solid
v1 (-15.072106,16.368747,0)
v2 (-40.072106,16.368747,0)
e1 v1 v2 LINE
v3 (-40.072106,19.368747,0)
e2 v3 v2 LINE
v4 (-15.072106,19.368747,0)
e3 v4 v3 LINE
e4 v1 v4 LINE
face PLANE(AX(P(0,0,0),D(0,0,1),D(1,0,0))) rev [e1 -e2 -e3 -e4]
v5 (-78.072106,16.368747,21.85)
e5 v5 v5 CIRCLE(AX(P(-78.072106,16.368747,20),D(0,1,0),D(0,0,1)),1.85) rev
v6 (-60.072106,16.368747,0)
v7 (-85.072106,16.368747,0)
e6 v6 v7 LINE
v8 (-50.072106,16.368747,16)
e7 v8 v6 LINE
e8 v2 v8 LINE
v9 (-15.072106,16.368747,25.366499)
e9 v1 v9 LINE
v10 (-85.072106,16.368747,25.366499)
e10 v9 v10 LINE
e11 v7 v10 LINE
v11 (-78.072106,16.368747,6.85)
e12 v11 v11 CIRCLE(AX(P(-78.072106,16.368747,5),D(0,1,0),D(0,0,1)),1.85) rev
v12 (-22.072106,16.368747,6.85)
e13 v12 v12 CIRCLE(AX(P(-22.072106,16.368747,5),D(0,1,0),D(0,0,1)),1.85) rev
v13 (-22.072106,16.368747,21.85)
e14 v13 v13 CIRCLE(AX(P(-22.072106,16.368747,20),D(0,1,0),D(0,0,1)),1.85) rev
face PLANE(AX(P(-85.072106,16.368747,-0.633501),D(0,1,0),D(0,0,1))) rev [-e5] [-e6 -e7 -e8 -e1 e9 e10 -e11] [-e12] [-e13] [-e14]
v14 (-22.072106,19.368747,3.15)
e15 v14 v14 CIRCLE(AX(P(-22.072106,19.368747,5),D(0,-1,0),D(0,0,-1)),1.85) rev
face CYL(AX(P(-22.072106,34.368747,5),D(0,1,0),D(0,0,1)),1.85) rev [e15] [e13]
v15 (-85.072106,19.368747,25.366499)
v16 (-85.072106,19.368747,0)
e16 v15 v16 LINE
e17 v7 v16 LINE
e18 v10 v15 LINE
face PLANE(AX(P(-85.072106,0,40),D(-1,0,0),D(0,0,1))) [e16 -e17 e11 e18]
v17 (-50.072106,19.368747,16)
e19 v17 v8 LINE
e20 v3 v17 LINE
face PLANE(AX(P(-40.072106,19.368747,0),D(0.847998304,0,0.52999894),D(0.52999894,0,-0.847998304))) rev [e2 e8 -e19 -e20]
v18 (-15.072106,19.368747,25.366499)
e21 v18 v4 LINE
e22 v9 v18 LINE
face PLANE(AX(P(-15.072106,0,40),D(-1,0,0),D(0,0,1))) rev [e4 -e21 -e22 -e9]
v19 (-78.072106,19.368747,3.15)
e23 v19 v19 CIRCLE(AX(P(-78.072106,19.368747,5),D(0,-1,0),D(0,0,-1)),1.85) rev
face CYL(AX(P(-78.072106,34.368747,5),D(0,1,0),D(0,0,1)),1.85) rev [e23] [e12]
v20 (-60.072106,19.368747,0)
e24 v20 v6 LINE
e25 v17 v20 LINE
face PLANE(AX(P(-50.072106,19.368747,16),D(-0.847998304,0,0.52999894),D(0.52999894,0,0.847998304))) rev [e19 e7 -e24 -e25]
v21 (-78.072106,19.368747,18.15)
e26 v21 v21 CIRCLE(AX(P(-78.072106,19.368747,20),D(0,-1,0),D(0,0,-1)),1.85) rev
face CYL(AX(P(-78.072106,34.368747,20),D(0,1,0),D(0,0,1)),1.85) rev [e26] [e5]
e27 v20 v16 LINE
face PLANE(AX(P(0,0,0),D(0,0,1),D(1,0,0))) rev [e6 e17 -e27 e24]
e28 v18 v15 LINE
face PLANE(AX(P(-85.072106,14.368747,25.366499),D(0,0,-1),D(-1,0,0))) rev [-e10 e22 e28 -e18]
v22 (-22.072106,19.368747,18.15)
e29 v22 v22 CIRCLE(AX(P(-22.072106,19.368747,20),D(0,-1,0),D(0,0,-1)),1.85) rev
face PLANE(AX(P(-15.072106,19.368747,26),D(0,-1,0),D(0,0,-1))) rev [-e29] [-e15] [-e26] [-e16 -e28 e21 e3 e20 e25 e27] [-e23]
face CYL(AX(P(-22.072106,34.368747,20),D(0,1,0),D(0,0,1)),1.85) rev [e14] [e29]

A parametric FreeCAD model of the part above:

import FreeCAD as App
import Part
import Sketcher
from FreeCAD import Vector

doc = App.newDocument("Part")
params = doc.addObject("Spreadsheet::Sheet", "Params")
for row, (alias, value) in enumerate([
    ("sketch1_width", "70 mm"),
    ("sketch1_height", "20 mm"),
    ("sketch1_height2", "6 mm"),
    ("pad1_length", "40 mm"),
    ("sketch2_diameter", "8.4 mm"),
    ("hole_diameter", "8.4 mm"),
    ("sketch3_diameter", "3.7 mm"),
    ("hole2_diameter", "3.7 mm"),
    ("sketch4_diameter", "8.4 mm"),
    ("hole3_diameter", "8.4 mm"),
    ("hole3_csink_diameter", "8.45 mm"),
    ("sketch5_diameter", "10 mm"),
    ("pocket1_length", "12 mm"),
    ("sketch6_width", "70 mm"),
    ("pocket2_length", "20 mm"),
    ("sketch7_width", "70 mm"),
    ("sketch7_height", "15 mm"),
    ("pocket3_length", "26 mm"),
    ("sketch8_width", "70 mm"),
    ("sketch8_height", "2 mm"),
    ("pocket4_length", "26 mm"),
    ("sketch9_width", "20 mm"),
    ("pocket5_length", "3 mm"),
], start=1):
    params.set(f"A{row}", alias)
    params.set(f"B{row}", "=" + value)
    params.setAlias(f"B{row}", alias)

body = doc.addObject("PartDesign::Body", "Body")

sketch1 = doc.addObject("Sketcher::SketchObject", "Sketch")
body.addObject(sketch1)
sketch1.AttachmentSupport = (doc.XY_Plane, [""])
sketch1.MapMode = "FlatFace"
sketch1.addGeometry(Part.LineSegment(Vector(-85.072106, 34.368747, 0), Vector(-85.072106, 14.368747, 0)), False)
sketch1.addGeometry(Part.LineSegment(Vector(-85.072106, 14.368747, 0), Vector(-15.072106, 14.368747, 0)), False)
sketch1.addGeometry(Part.LineSegment(Vector(-15.072106, 14.368747, 0), Vector(-15.072106, 34.368747, 0)), False)
sketch1.addGeometry(Part.LineSegment(Vector(-15.072106, 34.368747, 0), Vector(-34.338773, 34.368747, 0)), False)
sketch1.addGeometry(Part.LineSegment(Vector(-34.338773, 34.368747, 0), Vector(-34.338773, 28.368747, 0)), False)
sketch1.addGeometry(Part.LineSegment(Vector(-34.338773, 28.368747, 0), Vector(-65.805439, 28.368747, 0)), False)
sketch1.addGeometry(Part.LineSegment(Vector(-65.805439, 28.368747, 0), Vector(-65.805439, 34.368747, 0)), False)
sketch1.addGeometry(Part.LineSegment(Vector(-65.805439, 34.368747, 0), Vector(-85.072106, 34.368747, 0)), False)
sketch1.addConstraint(Sketcher.Constraint("Coincident", 0, 2, 1, 1))
sketch1.addConstraint(Sketcher.Constraint("Coincident", 1, 2, 2, 1))
sketch1.addConstraint(Sketcher.Constraint("Coincident", 2, 2, 3, 1))
sketch1.addConstraint(Sketcher.Constraint("Coincident", 3, 2, 4, 1))
sketch1.addConstraint(Sketcher.Constraint("Coincident", 4, 2, 5, 1))
sketch1.addConstraint(Sketcher.Constraint("Coincident", 5, 2, 6, 1))
sketch1.addConstraint(Sketcher.Constraint("Coincident", 6, 2, 7, 1))
sketch1.addConstraint(Sketcher.Constraint("Coincident", 7, 2, 0, 1))
sketch1.addConstraint(Sketcher.Constraint("Vertical", 0))
sketch1.addConstraint(Sketcher.Constraint("Horizontal", 1))
sketch1.addConstraint(Sketcher.Constraint("Vertical", 2))
sketch1.addConstraint(Sketcher.Constraint("Horizontal", 3))
sketch1.addConstraint(Sketcher.Constraint("Vertical", 4))
sketch1.addConstraint(Sketcher.Constraint("Horizontal", 5))
sketch1.addConstraint(Sketcher.Constraint("Vertical", 6))
sketch1.addConstraint(Sketcher.Constraint("Horizontal", 7))
sketch1.addConstraint(Sketcher.Constraint("Horizontal", 3, 2, 6, 2))
sketch1.addConstraint(Sketcher.Constraint("Equal", 3, 7))
sketch1.addConstraint(Sketcher.Constraint("DistanceX", 1, 1, 1, 2, 70.0))
sketch1.addConstraint(Sketcher.Constraint("DistanceY", 0, 2, 0, 1, 20.0))
sketch1.addConstraint(Sketcher.Constraint("DistanceY", 4, 2, 4, 1, 6.0))
sketch1.addConstraint(Sketcher.Constraint("DistanceX", 3, 2, 3, 1, 19.266667))
sketch1.addConstraint(Sketcher.Constraint("DistanceX", 5, 2, -1, 1, 65.805439))
sketch1.addConstraint(Sketcher.Constraint("DistanceY", -1, 1, 0, 2, 14.368747))
sketch1.setExpression("Constraints[18]", "Params.sketch1_width")
sketch1.setExpression("Constraints[19]", "Params.sketch1_height")
sketch1.setExpression("Constraints[20]", "Params.sketch1_height2")
pad1 = doc.addObject("PartDesign::Pad", "Pad")
body.addObject(pad1)
pad1.Profile = sketch1
pad1.setExpression("Length", "Params.pad1_length")

sketch2 = doc.addObject("Sketcher::SketchObject", "Sketch001")
body.addObject(sketch2)
sketch2.AttachmentSupport = (doc.XZ_Plane, [""])
sketch2.MapMode = "FlatFace"
sketch2.AttachmentOffset = App.Placement(Vector(0, 0, -34.368747), App.Rotation())
sketch2.addGeometry(Part.Circle(Vector(-78.072106, 33, 0), Vector(0, 0, 1), 4.2), False)
sketch2.addGeometry(Part.Circle(Vector(-22.072106, 33, 0), Vector(0, 0, 1), 4.2), False)
sketch2.addConstraint(Sketcher.Constraint("Equal", 0, 1))
sketch2.addConstraint(Sketcher.Constraint("Horizontal", 0, 3, 1, 3))
sketch2.addConstraint(Sketcher.Constraint("Diameter", 0, 8.4))
sketch2.addConstraint(Sketcher.Constraint("DistanceY", -1, 1, 0, 3, 33.0))
sketch2.addConstraint(Sketcher.Constraint("DistanceX", 0, 3, 1, 3, 56.0))
sketch2.addConstraint(Sketcher.Constraint("DistanceX", 0, 3, -1, 1, 78.072106))
sketch2.setExpression("Constraints[2]", "Params.sketch2_diameter")
doc.recompute()
hole = doc.addObject("PartDesign::Hole", "Hole")
body.addObject(hole)
hole.Profile = sketch2
hole.ThreadType = "None"
hole.setExpression("Diameter", "Params.hole_diameter")
hole.DepthType = "ThroughAll"
hole.Reversed = True

sketch3 = doc.addObject("Sketcher::SketchObject", "Sketch002")
body.addObject(sketch3)
sketch3.AttachmentSupport = (doc.XZ_Plane, [""])
sketch3.MapMode = "FlatFace"
sketch3.AttachmentOffset = App.Placement(Vector(0, 0, -34.368747), App.Rotation())
sketch3.addGeometry(Part.Circle(Vector(-78.072106, 5, 0), Vector(0, 0, 1), 1.85), False)
sketch3.addGeometry(Part.Circle(Vector(-78.072106, 20, 0), Vector(0, 0, 1), 1.85), False)
sketch3.addGeometry(Part.Circle(Vector(-22.072106, 20, 0), Vector(0, 0, 1), 1.85), False)
sketch3.addGeometry(Part.Circle(Vector(-22.072106, 5, 0), Vector(0, 0, 1), 1.85), False)
sketch3.addConstraint(Sketcher.Constraint("Equal", 0, 1))
sketch3.addConstraint(Sketcher.Constraint("Equal", 1, 2))
sketch3.addConstraint(Sketcher.Constraint("Equal", 2, 3))
sketch3.addConstraint(Sketcher.Constraint("Horizontal", 1, 3, 2, 3))
sketch3.addConstraint(Sketcher.Constraint("Horizontal", 0, 3, 3, 3))
sketch3.addConstraint(Sketcher.Constraint("Vertical", 0, 3, 1, 3))
sketch3.addConstraint(Sketcher.Constraint("Vertical", 2, 3, 3, 3))
sketch3.addConstraint(Sketcher.Constraint("Diameter", 0, 3.7))
sketch3.addConstraint(Sketcher.Constraint("DistanceY", -1, 1, 0, 3, 5.0))
sketch3.addConstraint(Sketcher.Constraint("DistanceY", -1, 1, 1, 3, 20.0))
sketch3.addConstraint(Sketcher.Constraint("DistanceX", 1, 3, 2, 3, 56.0))
sketch3.addConstraint(Sketcher.Constraint("DistanceX", 0, 3, -1, 1, 78.072106))
sketch3.setExpression("Constraints[7]", "Params.sketch3_diameter")
doc.recompute()
hole2 = doc.addObject("PartDesign::Hole", "Hole001")
body.addObject(hole2)
hole2.Profile = sketch3
hole2.ThreadType = "None"
hole2.setExpression("Diameter", "Params.hole2_diameter")
hole2.DepthType = "ThroughAll"
hole2.Reversed = True

sketch4 = doc.addObject("Sketcher::SketchObject", "Sketch003")
body.addObject(sketch4)
sketch4.AttachmentSupport = (doc.XZ_Plane, [""])
sketch4.MapMode = "FlatFace"
sketch4.AttachmentOffset = App.Placement(Vector(0, 0, -14.368747), App.Rotation())
sketch4.addGeometry(Part.Circle(Vector(-50.072106, 33, 0), Vector(0, 0, 1), 4.2), False)
sketch4.addConstraint(Sketcher.Constraint("Diameter", 0, 8.4))
sketch4.addConstraint(Sketcher.Constraint("DistanceY", -1, 1, 0, 3, 33.0))
sketch4.addConstraint(Sketcher.Constraint("DistanceX", 0, 3, -1, 1, 50.072106))
sketch4.setExpression("Constraints[0]", "Params.sketch4_diameter")
doc.recompute()
hole3 = doc.addObject("PartDesign::Hole", "Hole002")
body.addObject(hole3)
hole3.Profile = sketch4
hole3.ThreadType = "None"
hole3.setExpression("Diameter", "Params.hole3_diameter")
hole3.DepthType = "ThroughAll"
hole3.HoleCutType = "Countersink"
hole3.setExpression("HoleCutDiameter", "Params.hole3_csink_diameter")
hole3.HoleCutCountersinkAngle = 90

sketch5 = doc.addObject("Sketcher::SketchObject", "Sketch004")
body.addObject(sketch5)
sketch5.AttachmentSupport = (doc.XZ_Plane, [""])
sketch5.MapMode = "FlatFace"
sketch5.AttachmentOffset = App.Placement(Vector(0, 0, -28.368747), App.Rotation())
sketch5.addGeometry(Part.Circle(Vector(-50.072106, 33, 0), Vector(0, 0, 1), 5), False)
sketch5.addConstraint(Sketcher.Constraint("Diameter", 0, 10.0))
sketch5.addConstraint(Sketcher.Constraint("DistanceY", -1, 1, 0, 3, 33.0))
sketch5.addConstraint(Sketcher.Constraint("DistanceX", 0, 3, -1, 1, 50.072106))
sketch5.setExpression("Constraints[0]", "Params.sketch5_diameter")
pocket1 = doc.addObject("PartDesign::Pocket", "Pocket")
body.addObject(pocket1)
pocket1.Profile = sketch5
pocket1.setExpression("Length", "Params.pocket1_length")
pocket1.Reversed = True

sketch6 = doc.addObject("Sketcher::SketchObject", "Sketch005")
body.addObject(sketch6)
sketch6.AttachmentSupport = (doc.XZ_Plane, [""])
sketch6.MapMode = "FlatFace"
sketch6.AttachmentOffset = App.Placement(Vector(0, 0, -34.368747), App.Rotation())
sketch6.addGeometry(Part.LineSegment(Vector(-85.072106, 25.366499, 0), Vector(-85.072106, 40, 0)), False)
sketch6.addGeometry(Part.LineSegment(Vector(-85.072106, 40, 0), Vector(-15.072106, 40, 0)), False)
sketch6.addGeometry(Part.LineSegment(Vector(-15.072106, 40, 0), Vector(-15.072106, 25.366499, 0)), False)
sketch6.addGeometry(Part.LineSegment(Vector(-15.072106, 25.366499, 0), Vector(-85.072106, 25.366499, 0)), False)
sketch6.addConstraint(Sketcher.Constraint("Coincident", 0, 2, 1, 1))
sketch6.addConstraint(Sketcher.Constraint("Coincident", 1, 2, 2, 1))
sketch6.addConstraint(Sketcher.Constraint("Coincident", 2, 2, 3, 1))
sketch6.addConstraint(Sketcher.Constraint("Coincident", 3, 2, 0, 1))
sketch6.addConstraint(Sketcher.Constraint("Vertical", 0))
sketch6.addConstraint(Sketcher.Constraint("Horizontal", 1))
sketch6.addConstraint(Sketcher.Constraint("Vertical", 2))
sketch6.addConstraint(Sketcher.Constraint("Horizontal", 3))
sketch6.addConstraint(Sketcher.Constraint("DistanceX", 1, 1, 1, 2, 70.0))
sketch6.addConstraint(Sketcher.Constraint("DistanceY", -1, 1, 0, 2, 40.0))
sketch6.addConstraint(Sketcher.Constraint("DistanceY", 0, 1, 0, 2, 14.633501))
sketch6.addConstraint(Sketcher.Constraint("DistanceX", 0, 2, -1, 1, 85.072106))
sketch6.setExpression("Constraints[8]", "Params.sketch6_width")
pocket2 = doc.addObject("PartDesign::Pocket", "Pocket001")
body.addObject(pocket2)
pocket2.Profile = sketch6
pocket2.setExpression("Length", "Params.pocket2_length")
pocket2.Reversed = True

sketch7 = doc.addObject("Sketcher::SketchObject", "Sketch006")
body.addObject(sketch7)
sketch7.AttachmentSupport = (doc.XY_Plane, [""])
sketch7.MapMode = "FlatFace"
sketch7.addGeometry(Part.LineSegment(Vector(-15.072106, 34.368747, 0), Vector(-15.072106, 19.368747, 0)), False)
sketch7.addGeometry(Part.LineSegment(Vector(-15.072106, 19.368747, 0), Vector(-85.072106, 19.368747, 0)), False)
sketch7.addGeometry(Part.LineSegment(Vector(-85.072106, 19.368747, 0), Vector(-85.072106, 34.368747, 0)), False)
sketch7.addGeometry(Part.LineSegment(Vector(-85.072106, 34.368747, 0), Vector(-15.072106, 34.368747, 0)), False)
sketch7.addConstraint(Sketcher.Constraint("Coincident", 0, 2, 1, 1))
sketch7.addConstraint(Sketcher.Constraint("Coincident", 1, 2, 2, 1))
sketch7.addConstraint(Sketcher.Constraint("Coincident", 2, 2, 3, 1))
sketch7.addConstraint(Sketcher.Constraint("Coincident", 3, 2, 0, 1))
sketch7.addConstraint(Sketcher.Constraint("Vertical", 0))
sketch7.addConstraint(Sketcher.Constraint("Horizontal", 1))
sketch7.addConstraint(Sketcher.Constraint("Vertical", 2))
sketch7.addConstraint(Sketcher.Constraint("Horizontal", 3))
sketch7.addConstraint(Sketcher.Constraint("DistanceX", 1, 2, 1, 1, 70.0))
sketch7.addConstraint(Sketcher.Constraint("DistanceY", 0, 2, 0, 1, 15.0))
sketch7.addConstraint(Sketcher.Constraint("DistanceX", 0, 2, -1, 1, 15.072106))
sketch7.addConstraint(Sketcher.Constraint("DistanceY", -1, 1, 0, 2, 19.368747))
sketch7.setExpression("Constraints[8]", "Params.sketch7_width")
sketch7.setExpression("Constraints[9]", "Params.sketch7_height")
pocket3 = doc.addObject("PartDesign::Pocket", "Pocket002")
body.addObject(pocket3)
pocket3.Profile = sketch7
pocket3.setExpression("Length", "Params.pocket3_length")
pocket3.Reversed = True

sketch8 = doc.addObject("Sketcher::SketchObject", "Sketch007")
body.addObject(sketch8)
sketch8.AttachmentSupport = (doc.XY_Plane, [""])
sketch8.MapMode = "FlatFace"
sketch8.AttachmentOffset = App.Placement(Vector(0, 0, 25.366499), App.Rotation())
sketch8.addGeometry(Part.LineSegment(Vector(-85.072106, 16.368747, 0), Vector(-85.072106, 14.368747, 0)), False)
sketch8.addGeometry(Part.LineSegment(Vector(-85.072106, 14.368747, 0), Vector(-15.072106, 14.368747, 0)), False)
sketch8.addGeometry(Part.LineSegment(Vector(-15.072106, 14.368747, 0), Vector(-15.072106, 16.368747, 0)), False)
sketch8.addGeometry(Part.LineSegment(Vector(-15.072106, 16.368747, 0), Vector(-85.072106, 16.368747, 0)), False)
sketch8.addConstraint(Sketcher.Constraint("Coincident", 0, 2, 1, 1))
sketch8.addConstraint(Sketcher.Constraint("Coincident", 1, 2, 2, 1))
sketch8.addConstraint(Sketcher.Constraint("Coincident", 2, 2, 3, 1))
sketch8.addConstraint(Sketcher.Constraint("Coincident", 3, 2, 0, 1))
sketch8.addConstraint(Sketcher.Constraint("Vertical", 0))
sketch8.addConstraint(Sketcher.Constraint("Horizontal", 1))
sketch8.addConstraint(Sketcher.Constraint("Vertical", 2))
sketch8.addConstraint(Sketcher.Constraint("Horizontal", 3))
sketch8.addConstraint(Sketcher.Constraint("DistanceX", 1, 1, 1, 2, 70.0))
sketch8.addConstraint(Sketcher.Constraint("DistanceY", 0, 2, 0, 1, 2.0))
sketch8.addConstraint(Sketcher.Constraint("DistanceX", 0, 2, -1, 1, 85.072106))
sketch8.addConstraint(Sketcher.Constraint("DistanceY", -1, 1, 0, 2, 14.368747))
sketch8.setExpression("Constraints[8]", "Params.sketch8_width")
sketch8.setExpression("Constraints[9]", "Params.sketch8_height")
pocket4 = doc.addObject("PartDesign::Pocket", "Pocket003")
body.addObject(pocket4)
pocket4.Profile = sketch8
pocket4.setExpression("Length", "Params.pocket4_length")

sketch9 = doc.addObject("Sketcher::SketchObject", "Sketch008")
body.addObject(sketch9)
sketch9.AttachmentSupport = (doc.XZ_Plane, [""])
sketch9.MapMode = "FlatFace"
sketch9.AttachmentOffset = App.Placement(Vector(0, 0, -16.368747), App.Rotation())
sketch9.addGeometry(Part.LineSegment(Vector(-40.072106, 0, 0), Vector(-50.072106, 16, 0)), False)
sketch9.addGeometry(Part.LineSegment(Vector(-50.072106, 16, 0), Vector(-60.072106, 0, 0)), False)
sketch9.addGeometry(Part.LineSegment(Vector(-60.072106, 0, 0), Vector(-40.072106, 0, 0)), False)
sketch9.addConstraint(Sketcher.Constraint("Coincident", 0, 2, 1, 1))
sketch9.addConstraint(Sketcher.Constraint("Coincident", 1, 2, 2, 1))
sketch9.addConstraint(Sketcher.Constraint("Coincident", 2, 2, 0, 1))
sketch9.addConstraint(Sketcher.Constraint("Horizontal", 2))
sketch9.addConstraint(Sketcher.Constraint("PointOnObject", 1, 2, -1))
sketch9.addConstraint(Sketcher.Constraint("Equal", 0, 1))
sketch9.addConstraint(Sketcher.Constraint("DistanceX", 2, 1, 2, 2, 20.0))
sketch9.addConstraint(Sketcher.Constraint("DistanceY", -1, 1, 0, 2, 16.0))
sketch9.addConstraint(Sketcher.Constraint("DistanceX", 0, 2, -1, 1, 50.072106))
sketch9.setExpression("Constraints[6]", "Params.sketch9_width")
pocket5 = doc.addObject("PartDesign::Pocket", "Pocket004")
body.addObject(pocket5)
pocket5.Profile = sketch9
pocket5.setExpression("Length", "Params.pocket5_length")

doc.recompute()
